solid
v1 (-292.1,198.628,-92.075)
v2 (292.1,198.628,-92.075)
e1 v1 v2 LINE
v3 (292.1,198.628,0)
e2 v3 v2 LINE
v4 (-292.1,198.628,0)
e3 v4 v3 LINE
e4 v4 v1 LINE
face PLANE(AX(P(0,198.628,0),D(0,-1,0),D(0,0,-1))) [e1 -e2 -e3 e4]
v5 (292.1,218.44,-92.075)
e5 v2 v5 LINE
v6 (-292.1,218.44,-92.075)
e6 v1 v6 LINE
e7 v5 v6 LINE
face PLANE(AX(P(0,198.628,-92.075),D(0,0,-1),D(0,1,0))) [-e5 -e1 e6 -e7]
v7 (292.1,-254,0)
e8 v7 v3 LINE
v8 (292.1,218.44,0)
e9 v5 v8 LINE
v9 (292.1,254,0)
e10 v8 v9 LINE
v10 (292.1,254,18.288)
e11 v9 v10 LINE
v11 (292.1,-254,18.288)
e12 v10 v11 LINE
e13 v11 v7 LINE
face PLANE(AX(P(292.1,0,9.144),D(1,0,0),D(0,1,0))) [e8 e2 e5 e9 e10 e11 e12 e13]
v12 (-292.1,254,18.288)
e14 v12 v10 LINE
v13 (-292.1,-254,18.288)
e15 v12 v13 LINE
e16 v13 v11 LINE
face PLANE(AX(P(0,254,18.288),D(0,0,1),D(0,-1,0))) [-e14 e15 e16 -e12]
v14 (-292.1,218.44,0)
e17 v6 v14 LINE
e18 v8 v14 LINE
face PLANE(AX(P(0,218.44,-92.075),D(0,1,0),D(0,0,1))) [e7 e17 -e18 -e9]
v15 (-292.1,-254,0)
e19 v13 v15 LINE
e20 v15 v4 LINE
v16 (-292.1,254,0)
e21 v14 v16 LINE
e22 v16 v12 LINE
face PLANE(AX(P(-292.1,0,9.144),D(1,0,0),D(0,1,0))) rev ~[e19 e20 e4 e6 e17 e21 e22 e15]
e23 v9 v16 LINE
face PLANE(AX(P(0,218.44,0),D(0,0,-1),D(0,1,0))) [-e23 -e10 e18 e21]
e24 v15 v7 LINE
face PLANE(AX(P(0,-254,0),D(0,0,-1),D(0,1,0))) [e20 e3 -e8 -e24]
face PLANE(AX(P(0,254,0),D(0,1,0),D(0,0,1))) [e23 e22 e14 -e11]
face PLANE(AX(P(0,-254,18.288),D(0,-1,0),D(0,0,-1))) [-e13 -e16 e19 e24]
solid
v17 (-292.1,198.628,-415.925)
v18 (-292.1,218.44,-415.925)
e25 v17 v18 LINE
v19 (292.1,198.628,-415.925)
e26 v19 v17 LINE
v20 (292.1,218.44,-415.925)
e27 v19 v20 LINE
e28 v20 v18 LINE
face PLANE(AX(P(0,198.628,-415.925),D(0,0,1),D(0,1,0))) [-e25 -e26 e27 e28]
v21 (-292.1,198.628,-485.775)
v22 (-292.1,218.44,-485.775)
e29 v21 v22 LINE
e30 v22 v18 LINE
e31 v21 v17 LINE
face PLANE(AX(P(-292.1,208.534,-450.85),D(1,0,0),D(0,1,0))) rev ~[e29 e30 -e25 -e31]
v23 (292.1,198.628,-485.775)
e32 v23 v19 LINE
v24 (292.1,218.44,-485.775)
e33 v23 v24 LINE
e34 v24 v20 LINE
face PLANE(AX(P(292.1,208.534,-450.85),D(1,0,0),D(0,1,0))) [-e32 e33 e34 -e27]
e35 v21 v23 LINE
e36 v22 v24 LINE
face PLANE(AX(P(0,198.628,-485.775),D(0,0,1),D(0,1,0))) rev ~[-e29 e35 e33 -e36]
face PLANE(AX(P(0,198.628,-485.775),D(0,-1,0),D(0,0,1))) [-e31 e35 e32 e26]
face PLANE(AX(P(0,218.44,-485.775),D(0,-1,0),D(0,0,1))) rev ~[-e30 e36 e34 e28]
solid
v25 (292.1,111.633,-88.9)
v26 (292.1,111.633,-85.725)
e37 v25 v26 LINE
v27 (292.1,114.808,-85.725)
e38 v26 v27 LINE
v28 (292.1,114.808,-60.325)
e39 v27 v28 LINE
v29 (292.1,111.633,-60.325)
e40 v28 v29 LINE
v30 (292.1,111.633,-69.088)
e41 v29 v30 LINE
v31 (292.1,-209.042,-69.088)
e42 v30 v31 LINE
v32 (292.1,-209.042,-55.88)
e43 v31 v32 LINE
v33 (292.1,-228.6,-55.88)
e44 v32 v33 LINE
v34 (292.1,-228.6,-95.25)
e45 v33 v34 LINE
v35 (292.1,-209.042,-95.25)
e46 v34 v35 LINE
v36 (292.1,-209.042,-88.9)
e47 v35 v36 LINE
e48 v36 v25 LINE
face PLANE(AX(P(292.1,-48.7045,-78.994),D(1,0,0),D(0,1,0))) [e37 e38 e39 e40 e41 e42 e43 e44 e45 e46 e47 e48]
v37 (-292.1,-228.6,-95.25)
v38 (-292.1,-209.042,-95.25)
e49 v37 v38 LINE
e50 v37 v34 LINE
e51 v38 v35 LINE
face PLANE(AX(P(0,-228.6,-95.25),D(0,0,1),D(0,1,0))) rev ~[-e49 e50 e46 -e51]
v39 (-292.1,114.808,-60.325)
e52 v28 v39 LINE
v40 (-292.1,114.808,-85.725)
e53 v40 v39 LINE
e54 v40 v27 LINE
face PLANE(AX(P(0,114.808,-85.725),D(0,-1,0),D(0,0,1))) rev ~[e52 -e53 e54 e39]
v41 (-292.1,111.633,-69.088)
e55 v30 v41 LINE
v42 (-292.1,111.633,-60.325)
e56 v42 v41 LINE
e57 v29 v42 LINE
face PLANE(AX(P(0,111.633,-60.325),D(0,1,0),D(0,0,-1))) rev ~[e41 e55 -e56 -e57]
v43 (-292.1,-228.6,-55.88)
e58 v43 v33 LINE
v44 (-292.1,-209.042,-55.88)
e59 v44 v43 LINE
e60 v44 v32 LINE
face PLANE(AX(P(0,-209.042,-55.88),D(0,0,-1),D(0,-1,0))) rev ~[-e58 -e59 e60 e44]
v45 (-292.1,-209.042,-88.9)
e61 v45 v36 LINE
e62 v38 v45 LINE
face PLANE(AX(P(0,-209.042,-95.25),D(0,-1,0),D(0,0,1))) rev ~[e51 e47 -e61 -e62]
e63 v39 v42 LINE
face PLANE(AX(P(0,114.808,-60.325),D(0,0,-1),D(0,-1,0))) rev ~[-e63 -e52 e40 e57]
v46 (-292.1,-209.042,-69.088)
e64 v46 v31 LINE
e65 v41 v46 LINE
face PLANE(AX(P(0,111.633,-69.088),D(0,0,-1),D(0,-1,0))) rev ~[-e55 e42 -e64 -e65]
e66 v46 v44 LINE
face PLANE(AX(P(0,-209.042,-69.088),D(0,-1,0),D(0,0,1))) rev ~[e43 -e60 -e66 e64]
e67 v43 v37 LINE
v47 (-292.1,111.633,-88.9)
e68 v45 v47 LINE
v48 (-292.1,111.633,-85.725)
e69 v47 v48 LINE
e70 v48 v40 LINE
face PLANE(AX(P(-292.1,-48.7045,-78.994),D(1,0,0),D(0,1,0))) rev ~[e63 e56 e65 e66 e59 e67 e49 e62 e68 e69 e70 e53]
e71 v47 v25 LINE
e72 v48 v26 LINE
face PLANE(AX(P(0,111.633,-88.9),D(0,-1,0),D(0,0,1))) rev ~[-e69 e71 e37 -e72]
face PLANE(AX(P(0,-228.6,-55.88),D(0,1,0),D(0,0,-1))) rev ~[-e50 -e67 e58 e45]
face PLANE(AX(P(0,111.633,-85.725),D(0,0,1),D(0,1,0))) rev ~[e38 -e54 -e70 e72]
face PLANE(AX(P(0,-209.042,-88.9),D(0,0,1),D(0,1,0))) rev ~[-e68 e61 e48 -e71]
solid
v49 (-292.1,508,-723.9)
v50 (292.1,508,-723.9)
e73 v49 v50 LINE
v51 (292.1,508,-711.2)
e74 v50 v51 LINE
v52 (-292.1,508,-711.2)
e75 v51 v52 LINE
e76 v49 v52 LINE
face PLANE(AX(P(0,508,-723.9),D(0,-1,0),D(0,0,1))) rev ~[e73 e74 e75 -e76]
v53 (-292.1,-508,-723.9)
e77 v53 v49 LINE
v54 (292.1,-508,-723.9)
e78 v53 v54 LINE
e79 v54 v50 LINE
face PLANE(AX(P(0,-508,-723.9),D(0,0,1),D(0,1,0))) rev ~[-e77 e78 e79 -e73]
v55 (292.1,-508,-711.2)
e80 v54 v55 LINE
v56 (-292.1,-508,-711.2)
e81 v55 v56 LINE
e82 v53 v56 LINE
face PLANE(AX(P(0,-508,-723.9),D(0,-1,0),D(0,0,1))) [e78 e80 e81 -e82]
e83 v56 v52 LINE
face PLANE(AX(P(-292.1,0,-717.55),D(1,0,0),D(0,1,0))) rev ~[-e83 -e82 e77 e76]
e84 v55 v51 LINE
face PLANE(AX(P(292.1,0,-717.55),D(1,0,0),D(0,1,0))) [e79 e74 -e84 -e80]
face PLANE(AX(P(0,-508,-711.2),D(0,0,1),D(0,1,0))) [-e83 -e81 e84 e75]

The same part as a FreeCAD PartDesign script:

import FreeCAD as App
import Part
import Sketcher
from FreeCAD import Vector
Q = App.Units.Quantity


def add_polygon(sketch, points):
    """Adds a closed chain of lines whose ends are joined by coincident constraints."""
    first, n = sketch.GeometryCount, len(points)
    for a, b in zip(points, points[1:] + points[:1]):
        sketch.addGeometry(Part.LineSegment(App.Vector(*a, 0), App.Vector(*b, 0)), False)
    for i in range(n):
        sketch.addConstraint(Sketcher.Constraint("Coincident", first + i, 2, first + (i + 1) % n, 1))

doc = App.newDocument("Part")
params = doc.addObject("Spreadsheet::Sheet", "Params")
for row, (alias, value) in enumerate([
    ("sketch1_width", "40 in"),
    ("sketch1_width2", "20 in"),
    ("sketch1_height", "1 in"),
    ("sketch1_width3", "1.4 in"),
    ("sketch1_height2", "0.5 in"),
    ("pad1_length", "23 in"),
], start=1):
    params.set(f"A{row}", alias)
    params.set(f"B{row}", "=" + value)
    params.setAlias(f"B{row}", alias)

body = doc.addObject("PartDesign::Body", "Body")
body.AllowCompound = True

sketch1 = body.newObject("Sketcher::SketchObject", "Sketch")
sketch1.AttachmentSupport = (doc.getObject("YZ_Plane"), [""])
sketch1.MapMode = "FlatFace"
add_polygon(sketch1, [(198.6, -415.9), (198.6, -485.8), (218.4, -485.8), (218.4, -415.9)])
add_polygon(sketch1, [(111.6, -69.1), (-209, -69.1), (-209, -55.9), (-228.6, -55.9), (-228.6, -95.2), (-209, -95.2), (-209, -88.9), (111.6, -88.9), (111.6, -85.7), (114.8, -85.7), (114.8, -60.3), (111.6, -60.3)])
add_polygon(sketch1, [(-508, -711.2), (-508, -723.9), (508, -723.9), (508, -711.2)])
add_polygon(sketch1, [(254, 0), (254, 18.3), (-254, 18.3), (-254, 0), (198.6, 0), (198.6, -92.1), (218.4, -92.1), (218.4, 0)])
sketch1.addConstraint([
    Sketcher.Constraint("Vertical", 0),
    Sketcher.Constraint("Horizontal", 1),
    Sketcher.Constraint("Vertical", 2),
    Sketcher.Constraint("Horizontal", 3),
    Sketcher.Constraint("Horizontal", 4),
    Sketcher.Constraint("Vertical", 5),
    Sketcher.Constraint("Horizontal", 6),
    Sketcher.Constraint("Vertical", 7),
    Sketcher.Constraint("Horizontal", 8),
    Sketcher.Constraint("Vertical", 9),
    Sketcher.Constraint("Horizontal", 10),
    Sketcher.Constraint("Vertical", 11),
    Sketcher.Constraint("Horizontal", 12),
    Sketcher.Constraint("Vertical", 13),
    Sketcher.Constraint("Horizontal", 14),
    Sketcher.Constraint("Vertical", 15),
    Sketcher.Constraint("Vertical", 16),
    Sketcher.Constraint("Horizontal", 17),
    Sketcher.Constraint("Vertical", 18),
    Sketcher.Constraint("Horizontal", 19),
    Sketcher.Constraint("Vertical", 20),
    Sketcher.Constraint("Horizontal", 21),
    Sketcher.Constraint("Vertical", 22),
    Sketcher.Constraint("Horizontal", 23),
    Sketcher.Constraint("Vertical", 24),
    Sketcher.Constraint("Horizontal", 25),
    Sketcher.Constraint("Vertical", 26),
    Sketcher.Constraint("Horizontal", 27),
    Sketcher.Constraint("Symmetric", 22, 2, 27, 2, -1, 1),
    Sketcher.Constraint("PointOnObject", 22, 2, -1),
    Sketcher.Constraint("Vertical", 5, 2, 8, 2),
    Sketcher.Constraint("Vertical", 11, 2, 14, 2),
    Sketcher.Constraint("Vertical", 3, 2, 23, 2),
    Sketcher.Constraint("Vertical", 2, 2, 25, 2),
    Sketcher.Constraint("Equal", 14, 11),
    Sketcher.Constraint("DistanceX", 17, 1, 17, 2, Q("40 in")),
    Sketcher.Constraint("DistanceX", 21, 2, 21, 1, Q("20 in")),
    Sketcher.Constraint("DistanceY", 13, 1, 13, 2, Q("1 in")),
    Sketcher.Constraint("DistanceX", 27, 1, 27, 2, Q("1.4 in")),
    Sketcher.Constraint("DistanceY", 16, 2, 16, 1, Q("0.5 in")),
    Sketcher.Constraint("DistanceX", 6, 2, -1, 1, Q("9 in")),
    Sketcher.Constraint("DistanceX", 16, 2, -1, 1, Q("20 in")),
    Sketcher.Constraint("DistanceY", 18, 2, -1, 1, Q("28 in")),
    Sketcher.Constraint("DistanceY", 16, 2, 9, 2, Q("25 in")),
    Sketcher.Constraint("DistanceX", 1, 1, 1, 2, Q("0.78 in")),
    Sketcher.Constraint("DistanceX", 6, 2, 6, 1, Q("0.77 in")),
    Sketcher.Constraint("DistanceY", 0, 2, 0, 1, Q("2.75 in")),
    Sketcher.Constraint("DistanceY", 5, 1, 5, 2, Q("0.52 in")),
    Sketcher.Constraint("DistanceY", 7, 2, 7, 1, Q("1.55 in")),
    Sketcher.Constraint("DistanceY", 9, 1, 9, 2, Q("0.25 in")),
    Sketcher.Constraint("DistanceY", 20, 1, 20, 2, Q("0.72 in")),
    Sketcher.Constraint("DistanceX", 13, 2, 23, 2, Q("3.3 in")),
    Sketcher.Constraint("DistanceX", 4, 2, 4, 1, Q("12.625 in")),
    Sketcher.Constraint("DistanceY", 24, 2, 24, 1, Q("3.625 in")),
    Sketcher.Constraint("DistanceY", 0, 2, -1, 1, Q("19.125 in")),
])
sketch1.setExpression("Constraints[63]", "Params.sketch1_width")
sketch1.setExpression("Constraints[64]", "Params.sketch1_width2")
sketch1.setExpression("Constraints[65]", "Params.sketch1_height")
sketch1.setExpression("Constraints[66]", "Params.sketch1_width3")
sketch1.setExpression("Constraints[67]", "Params.sketch1_height2")
pad1 = body.newObject("PartDesign::Pad", "Pad")
pad1.Profile = sketch1
pad1.setExpression("Length", "Params.pad1_length")
pad1.Midplane = True

doc.recompute()
